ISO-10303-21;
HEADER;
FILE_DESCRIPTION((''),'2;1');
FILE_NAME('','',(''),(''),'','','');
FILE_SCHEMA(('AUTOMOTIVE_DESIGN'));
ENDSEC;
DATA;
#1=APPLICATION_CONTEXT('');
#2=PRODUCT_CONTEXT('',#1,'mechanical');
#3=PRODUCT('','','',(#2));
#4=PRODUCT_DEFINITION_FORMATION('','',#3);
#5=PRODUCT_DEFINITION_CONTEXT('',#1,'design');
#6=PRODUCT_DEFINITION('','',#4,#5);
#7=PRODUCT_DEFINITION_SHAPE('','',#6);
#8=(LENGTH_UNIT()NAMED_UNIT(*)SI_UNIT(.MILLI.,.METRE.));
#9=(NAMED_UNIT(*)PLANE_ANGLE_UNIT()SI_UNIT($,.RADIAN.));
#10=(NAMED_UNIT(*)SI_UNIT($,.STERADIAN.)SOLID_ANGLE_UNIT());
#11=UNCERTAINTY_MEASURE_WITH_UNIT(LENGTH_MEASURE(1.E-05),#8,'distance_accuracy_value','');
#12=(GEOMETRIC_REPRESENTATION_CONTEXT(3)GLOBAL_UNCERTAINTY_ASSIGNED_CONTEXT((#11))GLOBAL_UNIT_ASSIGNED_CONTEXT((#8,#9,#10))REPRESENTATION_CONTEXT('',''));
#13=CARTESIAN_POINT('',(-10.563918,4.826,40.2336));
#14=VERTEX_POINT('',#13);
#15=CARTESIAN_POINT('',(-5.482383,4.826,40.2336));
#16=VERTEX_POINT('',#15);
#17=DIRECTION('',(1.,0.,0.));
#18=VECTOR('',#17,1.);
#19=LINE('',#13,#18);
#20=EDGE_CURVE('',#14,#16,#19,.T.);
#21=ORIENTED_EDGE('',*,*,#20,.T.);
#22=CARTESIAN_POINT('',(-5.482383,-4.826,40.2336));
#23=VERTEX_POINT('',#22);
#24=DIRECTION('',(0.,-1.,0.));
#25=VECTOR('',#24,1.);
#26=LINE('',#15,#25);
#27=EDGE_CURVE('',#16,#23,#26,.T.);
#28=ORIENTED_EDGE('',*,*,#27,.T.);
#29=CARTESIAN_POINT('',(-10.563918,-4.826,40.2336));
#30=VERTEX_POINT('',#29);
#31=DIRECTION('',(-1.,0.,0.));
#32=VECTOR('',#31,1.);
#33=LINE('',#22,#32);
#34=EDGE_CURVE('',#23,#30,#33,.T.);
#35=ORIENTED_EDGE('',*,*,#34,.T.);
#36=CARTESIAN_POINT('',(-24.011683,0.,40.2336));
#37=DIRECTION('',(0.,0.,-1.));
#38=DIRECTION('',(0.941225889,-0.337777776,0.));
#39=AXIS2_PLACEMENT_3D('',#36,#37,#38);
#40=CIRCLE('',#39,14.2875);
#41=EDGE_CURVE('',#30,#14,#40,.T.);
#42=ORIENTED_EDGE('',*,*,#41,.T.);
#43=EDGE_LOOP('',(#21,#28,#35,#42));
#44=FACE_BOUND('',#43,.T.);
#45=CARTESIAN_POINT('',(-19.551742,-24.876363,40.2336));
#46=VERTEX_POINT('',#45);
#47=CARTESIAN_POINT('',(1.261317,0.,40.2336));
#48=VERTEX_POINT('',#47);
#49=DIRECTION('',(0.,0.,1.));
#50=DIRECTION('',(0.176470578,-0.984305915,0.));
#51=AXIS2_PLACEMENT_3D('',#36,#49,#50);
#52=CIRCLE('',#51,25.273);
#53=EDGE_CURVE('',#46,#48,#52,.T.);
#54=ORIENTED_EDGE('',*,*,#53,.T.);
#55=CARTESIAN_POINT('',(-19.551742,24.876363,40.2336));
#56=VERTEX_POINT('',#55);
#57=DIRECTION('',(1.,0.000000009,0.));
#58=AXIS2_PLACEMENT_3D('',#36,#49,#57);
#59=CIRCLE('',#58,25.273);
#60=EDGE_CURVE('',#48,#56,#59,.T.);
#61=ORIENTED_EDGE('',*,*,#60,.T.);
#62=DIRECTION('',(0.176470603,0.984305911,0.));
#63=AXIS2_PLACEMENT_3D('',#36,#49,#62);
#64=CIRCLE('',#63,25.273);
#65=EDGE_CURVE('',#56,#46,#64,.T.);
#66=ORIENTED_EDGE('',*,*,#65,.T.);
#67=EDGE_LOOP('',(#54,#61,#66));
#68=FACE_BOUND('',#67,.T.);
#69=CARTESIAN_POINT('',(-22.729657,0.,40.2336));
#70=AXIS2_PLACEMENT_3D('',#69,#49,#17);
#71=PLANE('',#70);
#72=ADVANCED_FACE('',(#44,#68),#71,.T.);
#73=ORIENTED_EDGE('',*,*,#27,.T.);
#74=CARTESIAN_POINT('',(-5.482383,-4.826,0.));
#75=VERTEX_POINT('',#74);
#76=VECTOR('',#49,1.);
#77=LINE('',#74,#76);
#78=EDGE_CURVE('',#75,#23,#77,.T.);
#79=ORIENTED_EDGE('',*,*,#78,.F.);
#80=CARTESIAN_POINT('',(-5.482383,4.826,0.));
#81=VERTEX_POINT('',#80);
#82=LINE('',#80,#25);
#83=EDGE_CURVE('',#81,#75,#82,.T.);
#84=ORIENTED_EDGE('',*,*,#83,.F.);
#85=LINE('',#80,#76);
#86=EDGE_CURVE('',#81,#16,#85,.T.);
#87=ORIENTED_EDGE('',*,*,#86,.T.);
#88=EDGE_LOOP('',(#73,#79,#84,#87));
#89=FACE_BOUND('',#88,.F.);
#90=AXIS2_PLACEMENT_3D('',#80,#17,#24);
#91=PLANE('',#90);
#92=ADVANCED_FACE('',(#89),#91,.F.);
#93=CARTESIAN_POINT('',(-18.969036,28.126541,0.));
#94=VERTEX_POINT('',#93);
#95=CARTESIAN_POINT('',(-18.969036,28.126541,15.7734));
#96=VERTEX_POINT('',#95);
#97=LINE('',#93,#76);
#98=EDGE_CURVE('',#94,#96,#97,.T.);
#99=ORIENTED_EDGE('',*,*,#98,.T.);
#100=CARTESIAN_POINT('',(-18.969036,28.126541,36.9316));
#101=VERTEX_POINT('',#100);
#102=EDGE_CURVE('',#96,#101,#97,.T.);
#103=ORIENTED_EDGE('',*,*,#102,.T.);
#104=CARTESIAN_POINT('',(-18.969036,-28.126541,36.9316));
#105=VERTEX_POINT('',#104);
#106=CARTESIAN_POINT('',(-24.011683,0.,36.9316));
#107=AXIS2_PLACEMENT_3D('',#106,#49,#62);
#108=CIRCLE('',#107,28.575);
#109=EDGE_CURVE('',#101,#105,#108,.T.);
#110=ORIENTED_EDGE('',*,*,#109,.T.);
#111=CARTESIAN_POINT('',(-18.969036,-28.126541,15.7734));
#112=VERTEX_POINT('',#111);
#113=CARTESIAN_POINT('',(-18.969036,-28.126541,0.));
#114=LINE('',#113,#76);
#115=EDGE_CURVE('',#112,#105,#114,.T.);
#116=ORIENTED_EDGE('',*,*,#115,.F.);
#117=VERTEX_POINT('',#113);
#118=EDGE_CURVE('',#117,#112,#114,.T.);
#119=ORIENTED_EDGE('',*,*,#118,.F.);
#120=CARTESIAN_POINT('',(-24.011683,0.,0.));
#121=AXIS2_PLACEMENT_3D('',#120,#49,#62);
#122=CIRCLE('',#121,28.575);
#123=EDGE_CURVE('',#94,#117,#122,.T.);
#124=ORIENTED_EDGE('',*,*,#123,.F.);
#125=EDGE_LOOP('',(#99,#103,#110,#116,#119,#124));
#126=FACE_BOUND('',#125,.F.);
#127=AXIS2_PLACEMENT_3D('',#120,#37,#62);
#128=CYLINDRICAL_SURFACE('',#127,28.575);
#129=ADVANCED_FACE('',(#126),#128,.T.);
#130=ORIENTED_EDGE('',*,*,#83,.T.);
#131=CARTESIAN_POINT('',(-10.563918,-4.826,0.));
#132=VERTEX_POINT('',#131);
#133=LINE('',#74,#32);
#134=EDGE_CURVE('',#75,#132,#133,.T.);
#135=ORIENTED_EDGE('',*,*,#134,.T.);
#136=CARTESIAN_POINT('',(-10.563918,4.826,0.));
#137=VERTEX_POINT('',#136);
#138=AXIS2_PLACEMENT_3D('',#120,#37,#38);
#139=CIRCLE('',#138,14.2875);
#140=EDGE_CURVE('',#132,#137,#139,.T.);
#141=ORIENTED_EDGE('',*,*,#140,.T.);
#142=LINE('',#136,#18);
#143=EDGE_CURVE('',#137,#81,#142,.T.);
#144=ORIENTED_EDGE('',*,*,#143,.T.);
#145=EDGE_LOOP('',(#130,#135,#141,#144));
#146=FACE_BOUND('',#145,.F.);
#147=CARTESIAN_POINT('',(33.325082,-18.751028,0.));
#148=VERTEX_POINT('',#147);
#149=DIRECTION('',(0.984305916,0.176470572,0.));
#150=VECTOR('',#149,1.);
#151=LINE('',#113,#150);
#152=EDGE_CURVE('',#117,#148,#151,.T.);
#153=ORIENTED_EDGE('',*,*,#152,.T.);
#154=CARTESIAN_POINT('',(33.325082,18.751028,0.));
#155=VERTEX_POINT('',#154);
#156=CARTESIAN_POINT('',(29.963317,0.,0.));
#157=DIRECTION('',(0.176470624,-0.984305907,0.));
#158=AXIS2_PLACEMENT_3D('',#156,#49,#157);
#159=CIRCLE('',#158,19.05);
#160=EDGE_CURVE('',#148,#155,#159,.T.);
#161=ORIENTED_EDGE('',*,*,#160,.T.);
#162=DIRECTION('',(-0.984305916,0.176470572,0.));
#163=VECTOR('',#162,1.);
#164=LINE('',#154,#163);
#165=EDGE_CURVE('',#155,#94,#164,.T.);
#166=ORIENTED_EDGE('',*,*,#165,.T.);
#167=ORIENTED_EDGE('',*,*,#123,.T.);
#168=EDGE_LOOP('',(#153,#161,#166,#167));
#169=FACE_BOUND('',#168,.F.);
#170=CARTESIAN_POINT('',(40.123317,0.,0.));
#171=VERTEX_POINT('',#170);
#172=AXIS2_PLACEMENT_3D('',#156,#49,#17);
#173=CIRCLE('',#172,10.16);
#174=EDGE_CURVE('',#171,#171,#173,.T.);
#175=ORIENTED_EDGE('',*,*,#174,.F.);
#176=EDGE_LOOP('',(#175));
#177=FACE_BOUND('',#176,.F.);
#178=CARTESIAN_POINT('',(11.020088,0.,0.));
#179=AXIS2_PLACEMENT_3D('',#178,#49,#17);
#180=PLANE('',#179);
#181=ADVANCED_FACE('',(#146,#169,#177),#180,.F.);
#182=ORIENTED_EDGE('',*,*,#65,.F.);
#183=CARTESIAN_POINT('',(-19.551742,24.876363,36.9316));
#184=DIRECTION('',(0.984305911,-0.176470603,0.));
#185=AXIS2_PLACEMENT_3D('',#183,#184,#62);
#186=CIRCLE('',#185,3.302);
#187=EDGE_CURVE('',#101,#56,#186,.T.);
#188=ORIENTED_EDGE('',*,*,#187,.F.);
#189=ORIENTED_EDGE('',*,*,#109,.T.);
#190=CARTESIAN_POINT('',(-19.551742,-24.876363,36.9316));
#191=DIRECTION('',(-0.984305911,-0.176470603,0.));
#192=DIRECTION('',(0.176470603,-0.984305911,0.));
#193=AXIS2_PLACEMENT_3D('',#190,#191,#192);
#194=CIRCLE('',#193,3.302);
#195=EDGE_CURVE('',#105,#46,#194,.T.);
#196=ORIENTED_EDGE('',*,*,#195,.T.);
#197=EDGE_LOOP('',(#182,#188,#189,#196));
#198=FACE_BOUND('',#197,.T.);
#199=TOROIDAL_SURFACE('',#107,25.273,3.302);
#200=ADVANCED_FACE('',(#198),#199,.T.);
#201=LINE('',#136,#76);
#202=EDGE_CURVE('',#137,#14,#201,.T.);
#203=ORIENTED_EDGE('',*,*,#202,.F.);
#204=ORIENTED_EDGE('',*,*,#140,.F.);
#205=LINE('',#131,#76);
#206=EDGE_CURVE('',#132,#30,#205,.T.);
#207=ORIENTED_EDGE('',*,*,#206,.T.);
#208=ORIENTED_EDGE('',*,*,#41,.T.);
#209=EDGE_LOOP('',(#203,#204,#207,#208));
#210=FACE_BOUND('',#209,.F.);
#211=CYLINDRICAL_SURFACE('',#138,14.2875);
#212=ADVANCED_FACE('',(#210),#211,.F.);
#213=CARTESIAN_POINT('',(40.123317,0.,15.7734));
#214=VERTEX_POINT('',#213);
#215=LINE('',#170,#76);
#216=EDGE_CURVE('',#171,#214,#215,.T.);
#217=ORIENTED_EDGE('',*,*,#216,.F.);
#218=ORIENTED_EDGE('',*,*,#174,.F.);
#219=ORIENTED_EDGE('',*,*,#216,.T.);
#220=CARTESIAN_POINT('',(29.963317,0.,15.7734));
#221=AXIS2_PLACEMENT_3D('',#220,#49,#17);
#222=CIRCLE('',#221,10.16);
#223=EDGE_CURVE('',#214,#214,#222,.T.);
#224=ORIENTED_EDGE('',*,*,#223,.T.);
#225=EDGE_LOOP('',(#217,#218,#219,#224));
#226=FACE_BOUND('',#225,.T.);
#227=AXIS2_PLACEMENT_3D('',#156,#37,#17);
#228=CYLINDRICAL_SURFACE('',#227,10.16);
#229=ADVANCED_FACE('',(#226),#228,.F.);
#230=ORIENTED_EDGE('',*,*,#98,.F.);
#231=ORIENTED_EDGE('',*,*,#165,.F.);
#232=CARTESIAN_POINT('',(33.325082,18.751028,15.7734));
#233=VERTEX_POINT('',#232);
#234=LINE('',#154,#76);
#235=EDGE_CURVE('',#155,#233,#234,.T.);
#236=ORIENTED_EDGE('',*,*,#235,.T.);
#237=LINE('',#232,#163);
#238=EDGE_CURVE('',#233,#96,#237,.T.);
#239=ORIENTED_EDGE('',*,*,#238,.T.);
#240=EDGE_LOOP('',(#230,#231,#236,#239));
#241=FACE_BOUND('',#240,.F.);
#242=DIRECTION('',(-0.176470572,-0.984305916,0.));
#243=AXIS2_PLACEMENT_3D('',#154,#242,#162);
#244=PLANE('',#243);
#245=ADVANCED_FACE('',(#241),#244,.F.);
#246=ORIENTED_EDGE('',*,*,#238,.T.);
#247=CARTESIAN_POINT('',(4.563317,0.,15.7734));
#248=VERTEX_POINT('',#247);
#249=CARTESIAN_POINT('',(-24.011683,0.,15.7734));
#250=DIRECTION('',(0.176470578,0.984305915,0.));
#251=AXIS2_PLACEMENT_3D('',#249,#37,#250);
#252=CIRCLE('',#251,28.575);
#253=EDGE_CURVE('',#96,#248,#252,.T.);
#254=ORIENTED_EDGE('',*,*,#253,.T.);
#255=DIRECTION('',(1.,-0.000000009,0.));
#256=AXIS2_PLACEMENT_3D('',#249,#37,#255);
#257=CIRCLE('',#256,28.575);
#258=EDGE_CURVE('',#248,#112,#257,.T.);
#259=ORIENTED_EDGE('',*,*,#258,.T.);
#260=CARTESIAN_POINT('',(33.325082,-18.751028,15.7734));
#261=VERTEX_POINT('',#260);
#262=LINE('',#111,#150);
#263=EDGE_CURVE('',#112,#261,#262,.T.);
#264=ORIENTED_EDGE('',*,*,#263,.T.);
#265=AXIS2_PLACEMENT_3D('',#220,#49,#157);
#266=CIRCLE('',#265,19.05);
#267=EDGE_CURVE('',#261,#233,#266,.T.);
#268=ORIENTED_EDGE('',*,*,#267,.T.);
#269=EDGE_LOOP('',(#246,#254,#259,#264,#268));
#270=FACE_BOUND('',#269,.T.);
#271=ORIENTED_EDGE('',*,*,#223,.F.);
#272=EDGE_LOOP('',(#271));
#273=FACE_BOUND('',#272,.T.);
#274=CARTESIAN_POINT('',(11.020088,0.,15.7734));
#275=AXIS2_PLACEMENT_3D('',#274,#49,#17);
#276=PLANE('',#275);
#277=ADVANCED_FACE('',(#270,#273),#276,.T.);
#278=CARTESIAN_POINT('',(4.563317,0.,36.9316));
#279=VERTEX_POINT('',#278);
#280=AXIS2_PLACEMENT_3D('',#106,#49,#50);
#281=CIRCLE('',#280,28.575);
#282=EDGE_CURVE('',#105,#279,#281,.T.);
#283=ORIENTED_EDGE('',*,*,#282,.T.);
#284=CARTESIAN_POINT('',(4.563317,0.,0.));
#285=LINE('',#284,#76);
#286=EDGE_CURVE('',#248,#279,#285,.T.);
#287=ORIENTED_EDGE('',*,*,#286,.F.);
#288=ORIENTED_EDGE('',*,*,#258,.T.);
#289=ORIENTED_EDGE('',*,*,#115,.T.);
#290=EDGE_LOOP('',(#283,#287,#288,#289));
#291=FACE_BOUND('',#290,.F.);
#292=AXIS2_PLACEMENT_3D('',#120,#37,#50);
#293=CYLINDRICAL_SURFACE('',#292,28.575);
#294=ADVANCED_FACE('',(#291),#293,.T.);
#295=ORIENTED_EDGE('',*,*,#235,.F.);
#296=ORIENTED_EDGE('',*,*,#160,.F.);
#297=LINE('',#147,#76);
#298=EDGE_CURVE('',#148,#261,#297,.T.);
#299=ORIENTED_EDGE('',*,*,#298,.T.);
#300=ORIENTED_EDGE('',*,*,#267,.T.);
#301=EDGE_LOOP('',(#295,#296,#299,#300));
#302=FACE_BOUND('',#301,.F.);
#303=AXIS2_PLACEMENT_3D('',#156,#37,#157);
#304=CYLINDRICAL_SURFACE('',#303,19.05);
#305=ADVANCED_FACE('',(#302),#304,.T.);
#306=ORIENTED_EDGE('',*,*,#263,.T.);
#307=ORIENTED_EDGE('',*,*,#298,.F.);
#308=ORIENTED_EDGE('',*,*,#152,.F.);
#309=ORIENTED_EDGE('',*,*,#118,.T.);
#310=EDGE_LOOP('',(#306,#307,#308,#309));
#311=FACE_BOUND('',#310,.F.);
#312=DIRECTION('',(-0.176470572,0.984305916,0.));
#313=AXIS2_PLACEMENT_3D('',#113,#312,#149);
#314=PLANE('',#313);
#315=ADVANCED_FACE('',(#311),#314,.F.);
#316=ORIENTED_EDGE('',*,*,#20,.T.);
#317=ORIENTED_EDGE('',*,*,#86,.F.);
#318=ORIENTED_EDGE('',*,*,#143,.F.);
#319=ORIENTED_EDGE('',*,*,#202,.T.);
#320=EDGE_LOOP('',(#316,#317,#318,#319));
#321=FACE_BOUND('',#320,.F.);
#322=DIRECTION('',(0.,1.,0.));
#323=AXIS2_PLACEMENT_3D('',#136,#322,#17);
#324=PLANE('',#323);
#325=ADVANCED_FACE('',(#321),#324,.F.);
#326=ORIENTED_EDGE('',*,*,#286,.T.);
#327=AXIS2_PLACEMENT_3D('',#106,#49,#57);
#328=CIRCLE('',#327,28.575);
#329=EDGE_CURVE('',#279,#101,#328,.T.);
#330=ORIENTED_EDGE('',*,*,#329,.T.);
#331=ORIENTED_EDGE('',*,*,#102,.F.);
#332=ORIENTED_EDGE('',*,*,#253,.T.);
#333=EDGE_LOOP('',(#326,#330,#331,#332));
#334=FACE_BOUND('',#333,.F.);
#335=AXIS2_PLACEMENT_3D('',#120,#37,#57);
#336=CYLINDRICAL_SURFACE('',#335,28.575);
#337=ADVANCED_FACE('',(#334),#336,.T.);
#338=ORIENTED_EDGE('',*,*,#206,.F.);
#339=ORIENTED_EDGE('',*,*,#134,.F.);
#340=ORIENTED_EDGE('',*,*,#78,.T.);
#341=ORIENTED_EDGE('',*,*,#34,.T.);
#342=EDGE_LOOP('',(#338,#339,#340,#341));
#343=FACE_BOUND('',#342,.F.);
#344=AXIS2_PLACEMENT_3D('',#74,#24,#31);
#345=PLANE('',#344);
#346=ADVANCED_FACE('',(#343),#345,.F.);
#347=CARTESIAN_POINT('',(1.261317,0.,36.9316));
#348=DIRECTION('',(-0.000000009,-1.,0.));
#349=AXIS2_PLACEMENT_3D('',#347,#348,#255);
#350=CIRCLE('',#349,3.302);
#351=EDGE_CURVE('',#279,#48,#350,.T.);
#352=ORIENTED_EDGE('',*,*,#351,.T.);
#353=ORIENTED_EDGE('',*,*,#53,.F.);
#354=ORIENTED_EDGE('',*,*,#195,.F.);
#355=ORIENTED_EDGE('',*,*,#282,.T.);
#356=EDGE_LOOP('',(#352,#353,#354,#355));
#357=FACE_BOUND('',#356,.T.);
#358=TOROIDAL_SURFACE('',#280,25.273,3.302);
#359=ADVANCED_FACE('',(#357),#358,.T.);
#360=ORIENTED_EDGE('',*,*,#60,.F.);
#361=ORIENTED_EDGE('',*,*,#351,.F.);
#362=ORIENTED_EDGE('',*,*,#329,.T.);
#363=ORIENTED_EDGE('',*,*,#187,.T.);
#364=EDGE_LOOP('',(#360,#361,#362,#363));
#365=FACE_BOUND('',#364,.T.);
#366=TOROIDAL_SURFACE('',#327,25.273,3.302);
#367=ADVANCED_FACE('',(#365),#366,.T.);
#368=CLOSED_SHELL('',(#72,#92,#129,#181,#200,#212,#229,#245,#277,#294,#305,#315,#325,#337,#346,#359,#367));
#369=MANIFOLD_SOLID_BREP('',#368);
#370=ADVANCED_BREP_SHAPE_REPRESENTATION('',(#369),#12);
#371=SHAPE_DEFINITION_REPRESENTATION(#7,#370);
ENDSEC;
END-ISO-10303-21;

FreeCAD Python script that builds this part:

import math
import FreeCAD as App
import Part
import Sketcher
Q = App.Units.Quantity


def edges_at(feature, points):
    """Names of the edges that pass closest to the given points."""
    edges = feature.Shape.Edges
    near = lambda p: min(range(len(edges)), key=lambda i: edges[i].distToShape(Part.Vertex(*p))[0])
    return sorted({f"Edge{near(p) + 1}" for p in points})

doc = App.newDocument("Part")
body = doc.addObject("PartDesign::Body", "Body")

sketch1 = body.newObject("Sketcher::SketchObject", "Sketch")
sketch1.AttachmentSupport = (doc.getObject("XY_Plane"), [""])
sketch1.MapMode = "FlatFace"
sketch1.addGeometry(Part.ArcOfCircle(Part.Circle(App.Vector(-24.011683, 0, 0), App.Vector(0, 0, 1), 28.575), math.radians(79.835751), math.radians(280.164249)), False)
sketch1.addGeometry(Part.ArcOfCircle(Part.Circle(App.Vector(-24.011683, 0, 0), App.Vector(0, 0, 1), 28.575), math.radians(-79.835752), math.radians(0)), False)
sketch1.addGeometry(Part.ArcOfCircle(Part.Circle(App.Vector(-24.011683, 0, 0), App.Vector(0, 0, 1), 28.575), math.radians(0), math.radians(79.835752)), False)
sketch1.addGeometry(Part.LineSegment(App.Vector(-5.482383, -4.826, 0), App.Vector(-10.563918, -4.826, 0)), False)
sketch1.addGeometry(Part.ArcOfCircle(Part.Circle(App.Vector(-24.011683, 0, 0), App.Vector(0, 0, 1), 14.2875), math.radians(19.741542), math.radians(340.258458)), False)
sketch1.addGeometry(Part.LineSegment(App.Vector(-10.563918, 4.826, 0), App.Vector(-5.482383, 4.826, 0)), False)
sketch1.addGeometry(Part.LineSegment(App.Vector(-5.482383, 4.826, 0), App.Vector(-5.482383, -4.826, 0)), False)
sketch1.addConstraint(Sketcher.Constraint("Tangent", 0, 2, 1, 1))
sketch1.addConstraint(Sketcher.Constraint("Tangent", 1, 2, 2, 1))
sketch1.addConstraint(Sketcher.Constraint("Tangent", 2, 2, 0, 1))
sketch1.addConstraint(Sketcher.Constraint("Coincident", 3, 2, 4, 2))
sketch1.addConstraint(Sketcher.Constraint("Coincident", 4, 1, 5, 1))
sketch1.addConstraint(Sketcher.Constraint("Coincident", 5, 2, 6, 1))
sketch1.addConstraint(Sketcher.Constraint("Coincident", 6, 2, 3, 1))
sketch1.addConstraint(Sketcher.Constraint("Horizontal", 3))
sketch1.addConstraint(Sketcher.Constraint("Horizontal", 5))
sketch1.addConstraint(Sketcher.Constraint("Vertical", 6))
sketch1.addConstraint(Sketcher.Constraint("Coincident", 4, 3, 0, 3))
sketch1.addConstraint(Sketcher.Constraint("Symmetric", 0, 2, 2, 2, -1))
sketch1.addConstraint(Sketcher.Constraint("PointOnObject", 1, 2, -1))
sketch1.addConstraint(Sketcher.Constraint("Vertical", 3, 2, 4, 1))
sketch1.addConstraint(Sketcher.Constraint("Radius", 0, Q("1.125 in")))
sketch1.addConstraint(Sketcher.Constraint("Radius", 4, Q("0.5625 in")))
sketch1.addConstraint(Sketcher.Constraint("DistanceY", 6, 2, 6, 1, Q("0.38 in")))
sketch1.addConstraint(Sketcher.Constraint("DistanceX", 5, 2, 1, 2, Q("0.3955 in")))
sketch1.addConstraint(Sketcher.Constraint("DistanceY", 0, 2, -1, 1, Q("28.126541 mm")))
sketch1.addConstraint(Sketcher.Constraint("DistanceX", 0, 3, -1, 1, Q("24.011683 mm")))
pad1 = body.newObject("PartDesign::Pad", "Pad")
pad1.Profile = sketch1
pad1.Length = Q("1.584 in")

sketch2 = body.newObject("Sketcher::SketchObject", "Sketch001")
sketch2.AttachmentSupport = (doc.getObject("XY_Plane"), [""])
sketch2.MapMode = "FlatFace"
sketch2.addGeometry(Part.LineSegment(App.Vector(-18.969036, -28.126541, 0), App.Vector(33.325082, -18.751028, 0)), False)
sketch2.addGeometry(Part.ArcOfCircle(Part.Circle(App.Vector(29.963317, 0, 0), App.Vector(0, 0, 1), 19.05), math.radians(-79.835749), math.radians(79.835749)), False)
sketch2.addGeometry(Part.LineSegment(App.Vector(33.325082, 18.751028, 0), App.Vector(-18.969036, 28.126541, 0)), False)
sketch2.addGeometry(Part.ArcOfCircle(Part.Circle(App.Vector(-24.011683, 0, 0), App.Vector(0, 0, 1), 28.575), math.radians(0), math.radians(79.835752)), False)
sketch2.addGeometry(Part.ArcOfCircle(Part.Circle(App.Vector(-24.011683, 0, 0), App.Vector(0, 0, 1), 28.575), math.radians(-79.835752), math.radians(0)), False)
sketch2.addGeometry(Part.Circle(App.Vector(29.963317, 0, 0), App.Vector(0, 0, 1), 10.16), False)
sketch2.addConstraint(Sketcher.Constraint("Tangent", 0, 2, 1, 1))
sketch2.addConstraint(Sketcher.Constraint("Tangent", 1, 2, 2, 1))
sketch2.addConstraint(Sketcher.Constraint("Tangent", 2, 2, 3, 2))
sketch2.addConstraint(Sketcher.Constraint("Tangent", 3, 1, 4, 2))
sketch2.addConstraint(Sketcher.Constraint("Tangent", 4, 1, 0, 1))
sketch2.addConstraint(Sketcher.Constraint("Coincident", 5, 3, 1, 3))
sketch2.addConstraint(Sketcher.Constraint("Equal", 3, 4))
sketch2.addConstraint(Sketcher.Constraint("Symmetric", 0, 2, 1, 2, -1))
sketch2.addConstraint(Sketcher.Constraint("PointOnObject", 3, 1, -1))
sketch2.addConstraint(Sketcher.Constraint("Diameter", 5, Q("0.8 in")))
sketch2.addConstraint(Sketcher.Constraint("Radius", 1, Q("0.75 in")))
sketch2.addConstraint(Sketcher.Constraint("Radius", 3, Q("1.125 in")))
sketch2.addConstraint(Sketcher.Constraint("DistanceX", 3, 1, 1, 3, Q("1 in")))
sketch2.addConstraint(Sketcher.Constraint("DistanceX", -1, 1, 1, 2, Q("33.325082 mm")))
pad2 = body.newObject("PartDesign::Pad", "Pad001")
pad2.Profile = sketch2
pad2.Length = Q("0.621 in")
doc.recompute()

fillet = body.newObject("PartDesign::Fillet", "Fillet")
fillet.Base = (pad2, edges_at(pad2, [(-52.587, 0, 40.234)]))
fillet.Radius = Q("0.13 in")

doc.recompute()
